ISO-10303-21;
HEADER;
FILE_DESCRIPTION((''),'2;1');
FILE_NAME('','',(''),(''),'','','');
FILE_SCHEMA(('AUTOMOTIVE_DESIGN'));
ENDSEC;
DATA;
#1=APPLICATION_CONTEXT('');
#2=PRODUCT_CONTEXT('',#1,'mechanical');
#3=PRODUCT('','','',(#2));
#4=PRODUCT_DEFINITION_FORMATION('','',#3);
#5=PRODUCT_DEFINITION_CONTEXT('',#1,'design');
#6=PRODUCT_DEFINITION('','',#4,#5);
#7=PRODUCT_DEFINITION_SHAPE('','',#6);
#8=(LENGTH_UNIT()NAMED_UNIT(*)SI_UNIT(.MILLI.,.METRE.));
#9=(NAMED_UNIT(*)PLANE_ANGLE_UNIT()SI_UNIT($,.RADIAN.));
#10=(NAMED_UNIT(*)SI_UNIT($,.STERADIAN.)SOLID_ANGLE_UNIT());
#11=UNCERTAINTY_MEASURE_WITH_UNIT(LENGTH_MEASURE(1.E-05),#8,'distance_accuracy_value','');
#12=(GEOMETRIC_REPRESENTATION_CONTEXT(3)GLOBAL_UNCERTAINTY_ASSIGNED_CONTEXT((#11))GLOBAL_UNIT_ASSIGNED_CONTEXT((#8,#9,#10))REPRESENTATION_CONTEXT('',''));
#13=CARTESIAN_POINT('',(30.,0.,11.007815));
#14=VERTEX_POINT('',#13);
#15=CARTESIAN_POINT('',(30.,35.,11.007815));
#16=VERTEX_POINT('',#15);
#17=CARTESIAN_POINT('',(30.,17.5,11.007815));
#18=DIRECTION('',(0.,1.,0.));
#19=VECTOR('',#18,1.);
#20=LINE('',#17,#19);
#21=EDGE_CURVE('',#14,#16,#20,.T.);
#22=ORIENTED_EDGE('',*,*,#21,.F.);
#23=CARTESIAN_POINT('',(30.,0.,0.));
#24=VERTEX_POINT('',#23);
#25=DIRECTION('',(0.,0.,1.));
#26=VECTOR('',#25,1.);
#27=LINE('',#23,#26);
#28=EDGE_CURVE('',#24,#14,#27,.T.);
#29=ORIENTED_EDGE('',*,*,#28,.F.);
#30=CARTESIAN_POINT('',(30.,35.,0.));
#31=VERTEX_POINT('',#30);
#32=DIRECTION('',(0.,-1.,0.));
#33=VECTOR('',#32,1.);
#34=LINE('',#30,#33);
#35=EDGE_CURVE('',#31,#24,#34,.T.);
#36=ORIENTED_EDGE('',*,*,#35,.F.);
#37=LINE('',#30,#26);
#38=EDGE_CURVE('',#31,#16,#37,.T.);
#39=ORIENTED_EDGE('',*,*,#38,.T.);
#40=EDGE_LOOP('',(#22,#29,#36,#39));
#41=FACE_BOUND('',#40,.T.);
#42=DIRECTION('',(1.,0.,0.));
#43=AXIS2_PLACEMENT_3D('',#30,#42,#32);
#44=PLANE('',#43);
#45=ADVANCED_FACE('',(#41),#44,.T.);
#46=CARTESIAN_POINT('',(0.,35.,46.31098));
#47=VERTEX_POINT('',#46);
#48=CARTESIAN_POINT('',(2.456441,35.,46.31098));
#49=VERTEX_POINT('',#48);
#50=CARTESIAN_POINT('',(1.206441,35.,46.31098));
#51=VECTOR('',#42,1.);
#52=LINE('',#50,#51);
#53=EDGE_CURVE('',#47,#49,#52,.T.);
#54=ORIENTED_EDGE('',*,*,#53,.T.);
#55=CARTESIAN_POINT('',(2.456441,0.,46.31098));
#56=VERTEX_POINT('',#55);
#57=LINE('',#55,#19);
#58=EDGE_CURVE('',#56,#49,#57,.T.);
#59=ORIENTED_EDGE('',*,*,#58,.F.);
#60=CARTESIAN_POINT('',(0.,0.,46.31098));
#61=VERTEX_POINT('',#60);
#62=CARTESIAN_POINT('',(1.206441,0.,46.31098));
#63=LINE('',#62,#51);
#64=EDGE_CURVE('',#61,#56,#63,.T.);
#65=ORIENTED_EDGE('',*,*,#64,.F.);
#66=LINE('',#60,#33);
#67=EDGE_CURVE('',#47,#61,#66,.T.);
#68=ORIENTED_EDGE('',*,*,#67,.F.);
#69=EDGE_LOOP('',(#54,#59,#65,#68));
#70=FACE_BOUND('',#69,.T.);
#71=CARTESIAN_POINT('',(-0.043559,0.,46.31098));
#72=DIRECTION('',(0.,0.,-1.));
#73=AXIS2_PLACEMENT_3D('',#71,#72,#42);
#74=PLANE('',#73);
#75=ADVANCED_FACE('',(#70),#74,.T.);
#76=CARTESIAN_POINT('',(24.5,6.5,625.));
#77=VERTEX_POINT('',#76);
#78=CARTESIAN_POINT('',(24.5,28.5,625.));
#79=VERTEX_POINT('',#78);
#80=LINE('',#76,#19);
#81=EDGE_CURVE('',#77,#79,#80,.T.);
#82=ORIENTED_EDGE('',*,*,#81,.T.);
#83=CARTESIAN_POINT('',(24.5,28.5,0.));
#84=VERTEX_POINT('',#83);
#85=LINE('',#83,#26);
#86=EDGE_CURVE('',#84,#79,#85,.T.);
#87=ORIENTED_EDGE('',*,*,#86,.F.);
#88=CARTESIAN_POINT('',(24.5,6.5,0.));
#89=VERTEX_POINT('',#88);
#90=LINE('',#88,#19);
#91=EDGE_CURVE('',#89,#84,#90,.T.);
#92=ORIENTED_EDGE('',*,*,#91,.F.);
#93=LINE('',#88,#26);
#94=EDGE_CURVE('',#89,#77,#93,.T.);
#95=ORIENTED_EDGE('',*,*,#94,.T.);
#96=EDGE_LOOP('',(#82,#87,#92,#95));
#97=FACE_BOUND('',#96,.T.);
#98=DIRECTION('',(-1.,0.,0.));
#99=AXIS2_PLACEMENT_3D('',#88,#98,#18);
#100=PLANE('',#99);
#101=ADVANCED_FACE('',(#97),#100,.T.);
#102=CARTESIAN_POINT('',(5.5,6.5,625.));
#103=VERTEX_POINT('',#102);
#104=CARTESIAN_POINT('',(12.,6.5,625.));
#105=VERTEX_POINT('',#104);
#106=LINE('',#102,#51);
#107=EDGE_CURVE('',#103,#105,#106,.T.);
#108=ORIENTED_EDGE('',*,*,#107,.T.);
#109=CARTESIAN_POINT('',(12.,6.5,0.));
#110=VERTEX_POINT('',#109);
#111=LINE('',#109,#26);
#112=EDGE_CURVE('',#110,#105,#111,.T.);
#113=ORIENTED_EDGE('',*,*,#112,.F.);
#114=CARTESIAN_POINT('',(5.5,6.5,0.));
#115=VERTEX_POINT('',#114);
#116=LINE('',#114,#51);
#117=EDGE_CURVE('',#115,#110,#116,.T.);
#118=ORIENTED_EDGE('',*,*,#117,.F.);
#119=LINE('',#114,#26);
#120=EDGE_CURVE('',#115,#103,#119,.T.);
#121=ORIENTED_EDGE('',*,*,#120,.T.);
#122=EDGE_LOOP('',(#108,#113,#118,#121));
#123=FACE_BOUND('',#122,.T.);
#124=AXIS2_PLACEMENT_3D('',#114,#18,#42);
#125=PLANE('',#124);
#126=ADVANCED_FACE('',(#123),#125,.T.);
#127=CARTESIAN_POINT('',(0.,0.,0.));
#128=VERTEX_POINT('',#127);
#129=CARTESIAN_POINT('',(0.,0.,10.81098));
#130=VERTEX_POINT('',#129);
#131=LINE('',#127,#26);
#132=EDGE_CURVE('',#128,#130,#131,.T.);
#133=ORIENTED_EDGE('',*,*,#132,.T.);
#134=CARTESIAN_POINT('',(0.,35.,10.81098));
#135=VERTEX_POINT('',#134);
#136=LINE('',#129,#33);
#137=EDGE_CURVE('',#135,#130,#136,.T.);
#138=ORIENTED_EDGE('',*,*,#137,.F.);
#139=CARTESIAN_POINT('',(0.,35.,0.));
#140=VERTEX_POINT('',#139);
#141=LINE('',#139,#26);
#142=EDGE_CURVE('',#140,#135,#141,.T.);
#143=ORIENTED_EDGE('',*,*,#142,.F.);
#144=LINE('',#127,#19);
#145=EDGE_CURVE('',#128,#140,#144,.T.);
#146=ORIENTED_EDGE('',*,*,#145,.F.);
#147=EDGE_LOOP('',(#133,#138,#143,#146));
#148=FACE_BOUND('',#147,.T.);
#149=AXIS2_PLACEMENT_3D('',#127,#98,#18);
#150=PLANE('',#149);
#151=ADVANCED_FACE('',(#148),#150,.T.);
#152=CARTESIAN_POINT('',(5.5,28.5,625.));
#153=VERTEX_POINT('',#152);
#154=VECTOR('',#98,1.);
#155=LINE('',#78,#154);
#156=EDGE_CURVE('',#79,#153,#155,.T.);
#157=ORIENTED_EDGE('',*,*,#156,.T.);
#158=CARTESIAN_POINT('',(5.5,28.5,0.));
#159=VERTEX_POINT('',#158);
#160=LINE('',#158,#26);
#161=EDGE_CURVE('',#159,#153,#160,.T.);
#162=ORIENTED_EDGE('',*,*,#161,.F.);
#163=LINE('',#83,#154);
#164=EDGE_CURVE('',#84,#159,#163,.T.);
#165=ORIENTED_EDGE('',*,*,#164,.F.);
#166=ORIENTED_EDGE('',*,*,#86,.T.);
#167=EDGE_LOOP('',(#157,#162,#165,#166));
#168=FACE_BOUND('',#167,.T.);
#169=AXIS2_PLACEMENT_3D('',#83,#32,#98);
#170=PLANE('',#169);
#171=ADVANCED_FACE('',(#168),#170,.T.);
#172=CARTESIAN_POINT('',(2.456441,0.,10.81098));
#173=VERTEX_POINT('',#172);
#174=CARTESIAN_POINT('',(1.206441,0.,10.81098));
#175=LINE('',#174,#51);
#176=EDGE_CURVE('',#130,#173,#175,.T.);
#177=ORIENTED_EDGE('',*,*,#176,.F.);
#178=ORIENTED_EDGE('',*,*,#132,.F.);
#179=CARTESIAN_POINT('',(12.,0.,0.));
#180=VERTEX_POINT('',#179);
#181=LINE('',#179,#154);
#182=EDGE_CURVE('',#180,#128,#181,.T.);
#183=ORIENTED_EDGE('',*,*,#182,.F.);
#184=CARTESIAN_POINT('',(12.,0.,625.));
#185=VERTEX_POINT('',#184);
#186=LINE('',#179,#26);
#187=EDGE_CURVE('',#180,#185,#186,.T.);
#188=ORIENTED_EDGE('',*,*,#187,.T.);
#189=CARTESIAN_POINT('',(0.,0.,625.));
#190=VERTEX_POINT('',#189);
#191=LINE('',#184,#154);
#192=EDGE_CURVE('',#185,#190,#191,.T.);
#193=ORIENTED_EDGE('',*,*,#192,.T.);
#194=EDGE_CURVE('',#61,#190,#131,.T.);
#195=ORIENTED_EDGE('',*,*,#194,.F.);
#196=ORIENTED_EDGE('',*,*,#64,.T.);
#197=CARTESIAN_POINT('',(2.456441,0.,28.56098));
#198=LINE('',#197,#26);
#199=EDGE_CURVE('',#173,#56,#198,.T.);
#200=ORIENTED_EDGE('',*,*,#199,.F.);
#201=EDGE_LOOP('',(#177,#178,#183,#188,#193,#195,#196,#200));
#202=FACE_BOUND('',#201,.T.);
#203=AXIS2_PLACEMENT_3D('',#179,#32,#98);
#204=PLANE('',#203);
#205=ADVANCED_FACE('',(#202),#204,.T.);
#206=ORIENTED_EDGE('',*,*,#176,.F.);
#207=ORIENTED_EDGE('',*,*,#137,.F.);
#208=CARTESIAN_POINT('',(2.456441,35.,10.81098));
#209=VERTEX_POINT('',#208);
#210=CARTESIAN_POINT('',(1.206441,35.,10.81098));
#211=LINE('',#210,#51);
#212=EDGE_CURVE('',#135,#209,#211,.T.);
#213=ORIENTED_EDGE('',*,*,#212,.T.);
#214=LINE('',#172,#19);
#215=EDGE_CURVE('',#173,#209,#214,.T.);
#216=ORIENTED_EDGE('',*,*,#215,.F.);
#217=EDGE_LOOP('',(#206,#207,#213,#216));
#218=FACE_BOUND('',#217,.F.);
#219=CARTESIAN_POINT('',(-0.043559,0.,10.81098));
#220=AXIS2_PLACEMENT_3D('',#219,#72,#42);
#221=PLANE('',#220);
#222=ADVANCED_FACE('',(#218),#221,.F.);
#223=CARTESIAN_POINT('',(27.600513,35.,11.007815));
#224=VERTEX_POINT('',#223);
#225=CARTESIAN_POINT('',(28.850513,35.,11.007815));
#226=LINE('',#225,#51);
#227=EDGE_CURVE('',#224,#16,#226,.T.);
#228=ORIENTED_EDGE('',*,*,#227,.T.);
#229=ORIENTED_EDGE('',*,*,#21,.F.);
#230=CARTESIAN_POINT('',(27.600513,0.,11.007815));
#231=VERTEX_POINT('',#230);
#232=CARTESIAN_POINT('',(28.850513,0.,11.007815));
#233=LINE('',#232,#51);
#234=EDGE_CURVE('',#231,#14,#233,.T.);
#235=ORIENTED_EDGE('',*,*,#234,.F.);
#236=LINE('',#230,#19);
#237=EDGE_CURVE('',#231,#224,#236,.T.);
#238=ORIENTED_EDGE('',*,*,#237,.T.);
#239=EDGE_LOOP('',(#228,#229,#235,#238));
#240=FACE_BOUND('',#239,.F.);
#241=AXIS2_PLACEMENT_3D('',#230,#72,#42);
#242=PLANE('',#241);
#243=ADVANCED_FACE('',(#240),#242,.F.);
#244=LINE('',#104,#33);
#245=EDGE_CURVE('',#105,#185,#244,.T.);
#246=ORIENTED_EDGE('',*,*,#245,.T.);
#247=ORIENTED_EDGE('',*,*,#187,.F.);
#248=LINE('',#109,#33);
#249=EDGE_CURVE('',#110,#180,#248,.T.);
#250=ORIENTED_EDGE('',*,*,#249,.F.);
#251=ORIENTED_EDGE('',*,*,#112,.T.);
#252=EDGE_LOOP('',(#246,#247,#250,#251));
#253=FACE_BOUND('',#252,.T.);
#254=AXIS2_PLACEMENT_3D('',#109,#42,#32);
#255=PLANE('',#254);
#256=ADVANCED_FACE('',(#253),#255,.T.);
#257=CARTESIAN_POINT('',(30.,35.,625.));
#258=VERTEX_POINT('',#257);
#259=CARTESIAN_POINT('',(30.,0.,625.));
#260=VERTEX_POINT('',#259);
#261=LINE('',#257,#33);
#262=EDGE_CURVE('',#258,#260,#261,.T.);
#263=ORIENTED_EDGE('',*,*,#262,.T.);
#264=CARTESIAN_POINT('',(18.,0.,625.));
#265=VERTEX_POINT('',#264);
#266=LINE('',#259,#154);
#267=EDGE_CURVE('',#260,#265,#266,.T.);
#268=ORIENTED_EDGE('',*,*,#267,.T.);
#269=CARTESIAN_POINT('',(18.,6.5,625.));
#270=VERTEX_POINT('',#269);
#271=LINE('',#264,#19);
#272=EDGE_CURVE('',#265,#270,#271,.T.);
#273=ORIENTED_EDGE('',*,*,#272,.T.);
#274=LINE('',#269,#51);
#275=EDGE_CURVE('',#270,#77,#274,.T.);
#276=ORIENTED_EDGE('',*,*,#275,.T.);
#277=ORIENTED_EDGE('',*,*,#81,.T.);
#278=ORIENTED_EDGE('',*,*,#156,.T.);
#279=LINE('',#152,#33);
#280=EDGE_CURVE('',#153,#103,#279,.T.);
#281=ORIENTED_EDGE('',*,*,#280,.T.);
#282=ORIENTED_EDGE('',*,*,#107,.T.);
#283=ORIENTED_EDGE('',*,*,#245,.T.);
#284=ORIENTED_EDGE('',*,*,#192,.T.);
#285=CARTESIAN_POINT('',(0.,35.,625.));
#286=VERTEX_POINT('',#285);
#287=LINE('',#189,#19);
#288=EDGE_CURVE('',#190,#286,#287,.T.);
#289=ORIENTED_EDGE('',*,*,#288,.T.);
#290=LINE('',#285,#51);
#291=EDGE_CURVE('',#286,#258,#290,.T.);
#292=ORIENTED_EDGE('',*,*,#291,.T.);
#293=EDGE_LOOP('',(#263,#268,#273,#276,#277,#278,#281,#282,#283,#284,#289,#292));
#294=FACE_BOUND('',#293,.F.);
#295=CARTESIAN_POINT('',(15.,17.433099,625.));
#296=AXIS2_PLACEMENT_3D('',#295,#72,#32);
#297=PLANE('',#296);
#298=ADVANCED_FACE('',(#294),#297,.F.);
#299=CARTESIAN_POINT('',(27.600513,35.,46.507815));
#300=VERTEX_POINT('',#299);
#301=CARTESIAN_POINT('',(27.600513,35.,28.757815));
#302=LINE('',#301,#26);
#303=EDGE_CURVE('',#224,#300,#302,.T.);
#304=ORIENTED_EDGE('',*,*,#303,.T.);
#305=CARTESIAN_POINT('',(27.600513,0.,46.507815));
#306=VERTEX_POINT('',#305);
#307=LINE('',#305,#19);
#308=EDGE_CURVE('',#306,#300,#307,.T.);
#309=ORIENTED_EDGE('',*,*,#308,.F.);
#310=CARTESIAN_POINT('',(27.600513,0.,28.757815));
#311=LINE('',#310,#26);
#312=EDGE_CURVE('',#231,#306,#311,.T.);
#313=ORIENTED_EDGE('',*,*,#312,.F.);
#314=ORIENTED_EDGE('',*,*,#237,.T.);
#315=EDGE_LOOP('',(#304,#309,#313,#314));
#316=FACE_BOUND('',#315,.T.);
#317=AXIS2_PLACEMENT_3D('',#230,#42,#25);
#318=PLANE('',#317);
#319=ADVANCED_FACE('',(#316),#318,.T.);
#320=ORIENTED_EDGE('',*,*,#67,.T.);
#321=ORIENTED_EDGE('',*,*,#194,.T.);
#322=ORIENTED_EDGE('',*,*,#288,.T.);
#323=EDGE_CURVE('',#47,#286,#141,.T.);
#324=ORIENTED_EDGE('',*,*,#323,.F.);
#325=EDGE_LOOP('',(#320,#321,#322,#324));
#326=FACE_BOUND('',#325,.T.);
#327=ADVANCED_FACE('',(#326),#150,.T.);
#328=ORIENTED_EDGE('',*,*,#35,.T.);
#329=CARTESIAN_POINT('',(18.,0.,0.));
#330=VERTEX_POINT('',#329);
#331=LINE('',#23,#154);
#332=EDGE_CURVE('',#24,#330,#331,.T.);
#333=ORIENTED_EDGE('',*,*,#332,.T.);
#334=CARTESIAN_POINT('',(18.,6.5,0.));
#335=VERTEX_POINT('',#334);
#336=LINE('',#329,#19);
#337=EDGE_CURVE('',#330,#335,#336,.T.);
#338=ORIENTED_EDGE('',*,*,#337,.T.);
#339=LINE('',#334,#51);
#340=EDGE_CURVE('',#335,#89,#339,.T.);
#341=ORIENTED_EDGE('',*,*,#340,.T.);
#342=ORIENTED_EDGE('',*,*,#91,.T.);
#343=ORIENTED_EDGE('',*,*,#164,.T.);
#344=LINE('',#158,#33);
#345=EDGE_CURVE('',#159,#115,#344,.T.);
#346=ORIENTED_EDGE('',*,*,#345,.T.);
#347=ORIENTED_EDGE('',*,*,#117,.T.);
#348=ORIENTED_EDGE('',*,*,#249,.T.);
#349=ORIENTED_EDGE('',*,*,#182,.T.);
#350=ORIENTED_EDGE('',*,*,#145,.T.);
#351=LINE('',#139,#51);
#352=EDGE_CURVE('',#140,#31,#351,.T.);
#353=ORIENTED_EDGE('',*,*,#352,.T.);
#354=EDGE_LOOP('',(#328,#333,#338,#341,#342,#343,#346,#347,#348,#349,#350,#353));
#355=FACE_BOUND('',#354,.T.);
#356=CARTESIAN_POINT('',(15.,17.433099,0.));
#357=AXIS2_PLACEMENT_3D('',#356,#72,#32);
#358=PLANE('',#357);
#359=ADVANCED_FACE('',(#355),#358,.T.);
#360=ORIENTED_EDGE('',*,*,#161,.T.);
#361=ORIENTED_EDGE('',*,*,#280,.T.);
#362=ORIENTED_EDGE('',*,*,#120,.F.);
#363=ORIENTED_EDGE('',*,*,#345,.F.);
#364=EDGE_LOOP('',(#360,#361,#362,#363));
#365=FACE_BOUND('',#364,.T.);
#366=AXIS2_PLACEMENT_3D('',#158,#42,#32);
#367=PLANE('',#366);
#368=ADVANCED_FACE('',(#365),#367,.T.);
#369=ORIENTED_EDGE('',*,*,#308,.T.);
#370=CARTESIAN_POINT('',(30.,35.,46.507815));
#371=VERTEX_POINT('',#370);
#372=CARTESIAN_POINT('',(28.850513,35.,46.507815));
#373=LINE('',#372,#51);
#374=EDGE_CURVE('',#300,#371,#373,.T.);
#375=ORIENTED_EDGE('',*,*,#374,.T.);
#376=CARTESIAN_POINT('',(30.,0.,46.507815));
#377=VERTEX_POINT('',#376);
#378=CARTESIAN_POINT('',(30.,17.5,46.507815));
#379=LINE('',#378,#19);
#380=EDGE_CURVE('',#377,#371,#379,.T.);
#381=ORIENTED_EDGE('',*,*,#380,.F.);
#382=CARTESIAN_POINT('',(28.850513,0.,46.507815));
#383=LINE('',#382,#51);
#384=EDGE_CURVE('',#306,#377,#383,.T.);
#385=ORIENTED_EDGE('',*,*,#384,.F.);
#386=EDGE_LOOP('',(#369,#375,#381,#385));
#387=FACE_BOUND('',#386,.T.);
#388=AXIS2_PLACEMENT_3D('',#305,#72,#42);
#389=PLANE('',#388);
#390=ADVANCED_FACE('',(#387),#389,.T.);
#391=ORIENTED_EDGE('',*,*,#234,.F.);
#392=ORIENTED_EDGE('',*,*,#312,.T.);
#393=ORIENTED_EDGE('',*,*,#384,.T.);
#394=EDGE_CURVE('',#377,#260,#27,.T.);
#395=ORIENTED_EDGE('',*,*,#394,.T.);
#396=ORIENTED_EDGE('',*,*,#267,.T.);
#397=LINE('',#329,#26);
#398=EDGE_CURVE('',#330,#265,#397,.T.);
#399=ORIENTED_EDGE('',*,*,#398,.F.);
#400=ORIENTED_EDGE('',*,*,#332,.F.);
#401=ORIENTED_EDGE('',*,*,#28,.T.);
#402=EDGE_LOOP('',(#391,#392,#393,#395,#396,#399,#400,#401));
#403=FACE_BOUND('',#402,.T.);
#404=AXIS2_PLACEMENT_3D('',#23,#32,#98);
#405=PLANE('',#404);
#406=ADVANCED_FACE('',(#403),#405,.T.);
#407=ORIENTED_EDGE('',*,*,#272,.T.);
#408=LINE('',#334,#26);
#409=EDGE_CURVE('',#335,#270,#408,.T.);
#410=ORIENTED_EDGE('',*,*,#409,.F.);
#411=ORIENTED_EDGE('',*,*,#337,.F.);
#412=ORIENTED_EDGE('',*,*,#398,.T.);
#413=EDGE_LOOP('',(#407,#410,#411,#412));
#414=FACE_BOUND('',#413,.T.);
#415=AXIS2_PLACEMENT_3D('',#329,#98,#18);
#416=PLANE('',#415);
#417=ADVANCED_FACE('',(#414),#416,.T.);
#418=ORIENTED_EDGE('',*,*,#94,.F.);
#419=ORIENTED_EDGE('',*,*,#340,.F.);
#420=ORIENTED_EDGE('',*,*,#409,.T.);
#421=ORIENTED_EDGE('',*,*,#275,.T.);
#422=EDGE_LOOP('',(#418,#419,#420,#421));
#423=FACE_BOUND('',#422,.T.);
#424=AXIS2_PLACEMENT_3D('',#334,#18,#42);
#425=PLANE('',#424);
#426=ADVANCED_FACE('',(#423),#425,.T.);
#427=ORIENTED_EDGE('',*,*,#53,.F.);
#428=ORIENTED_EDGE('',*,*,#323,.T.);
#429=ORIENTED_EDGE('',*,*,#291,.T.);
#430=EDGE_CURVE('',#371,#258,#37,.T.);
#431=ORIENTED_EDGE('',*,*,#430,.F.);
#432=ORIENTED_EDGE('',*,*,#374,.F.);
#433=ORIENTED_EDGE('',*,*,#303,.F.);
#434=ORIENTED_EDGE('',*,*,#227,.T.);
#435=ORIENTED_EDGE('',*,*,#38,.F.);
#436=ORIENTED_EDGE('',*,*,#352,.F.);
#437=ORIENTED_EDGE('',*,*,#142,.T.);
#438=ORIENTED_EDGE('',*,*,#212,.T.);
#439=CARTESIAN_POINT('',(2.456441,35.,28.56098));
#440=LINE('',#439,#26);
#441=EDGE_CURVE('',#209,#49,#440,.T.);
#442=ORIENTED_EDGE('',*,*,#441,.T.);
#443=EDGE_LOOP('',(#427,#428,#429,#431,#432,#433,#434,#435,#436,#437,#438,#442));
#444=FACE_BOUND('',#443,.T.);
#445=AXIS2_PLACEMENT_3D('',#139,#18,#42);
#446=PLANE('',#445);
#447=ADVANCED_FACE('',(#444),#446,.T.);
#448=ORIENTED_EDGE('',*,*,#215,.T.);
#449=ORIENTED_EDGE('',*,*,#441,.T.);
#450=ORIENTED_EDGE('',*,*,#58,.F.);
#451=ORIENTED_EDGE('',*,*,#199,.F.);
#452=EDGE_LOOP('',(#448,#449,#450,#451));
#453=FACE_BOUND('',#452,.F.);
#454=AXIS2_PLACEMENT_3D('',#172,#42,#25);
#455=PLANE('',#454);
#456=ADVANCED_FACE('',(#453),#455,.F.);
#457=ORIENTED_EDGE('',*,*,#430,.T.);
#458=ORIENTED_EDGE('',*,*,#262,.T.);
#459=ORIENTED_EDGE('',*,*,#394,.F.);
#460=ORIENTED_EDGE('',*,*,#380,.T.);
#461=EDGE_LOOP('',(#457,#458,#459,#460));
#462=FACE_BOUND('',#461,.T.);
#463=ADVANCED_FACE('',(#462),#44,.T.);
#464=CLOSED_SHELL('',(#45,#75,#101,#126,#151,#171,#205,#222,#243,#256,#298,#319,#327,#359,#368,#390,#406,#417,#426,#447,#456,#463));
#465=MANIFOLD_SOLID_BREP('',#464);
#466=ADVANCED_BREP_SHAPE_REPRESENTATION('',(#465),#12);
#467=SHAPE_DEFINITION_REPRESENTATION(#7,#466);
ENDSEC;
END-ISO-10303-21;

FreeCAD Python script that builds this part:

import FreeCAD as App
import Part
import Sketcher

V = App.Vector
Q = App.Units.Quantity


def add_polygon(sketch, points):
    """Adds a closed chain of lines whose ends are joined by coincident constraints."""
    first, n = sketch.GeometryCount, len(points)
    for a, b in zip(points, points[1:] + points[:1]):
        sketch.addGeometry(Part.LineSegment(App.Vector(*a, 0), App.Vector(*b, 0)), False)
    for i in range(n):
        sketch.addConstraint(Sketcher.Constraint("Coincident", first + i, 2, first + (i + 1) % n, 1))

doc = App.newDocument("Part")
body = doc.addObject("PartDesign::Body", "Body")

sketch1 = body.newObject("Sketcher::SketchObject", "Sketch")
sketch1.AttachmentSupport = (doc.getObject("XY_Plane"), [""])
sketch1.MapMode = "FlatFace"
add_polygon(sketch1, [(35, 0), (0, 0), (0, -12), (6, -12), (6, -6), (28, -6), (28, -24), (6, -24), (6, -18), (0, -18), (0, -30), (35, -30)])
sketch1.addConstraint([
    Sketcher.Constraint("Horizontal", 0),
    Sketcher.Constraint("Vertical", 1),
    Sketcher.Constraint("Horizontal", 2),
    Sketcher.Constraint("Vertical", 3),
    Sketcher.Constraint("Horizontal", 4),
    Sketcher.Constraint("Vertical", 5),
    Sketcher.Constraint("Horizontal", 6),
    Sketcher.Constraint("Vertical", 7),
    Sketcher.Constraint("Horizontal", 8),
    Sketcher.Constraint("Vertical", 9),
    Sketcher.Constraint("Horizontal", 10),
    Sketcher.Constraint("Vertical", 11),
    Sketcher.Constraint("Coincident", 0, 2, -1, 1),
    Sketcher.Constraint("PointOnObject", 8, 2, -2),
    Sketcher.Constraint("Vertical", 3, 2, 6, 2),
    Sketcher.Constraint("Equal", 8, 3),
    Sketcher.Constraint("Equal", 3, 7),
    Sketcher.Constraint("Equal", 1, 9),
    Sketcher.Constraint("DistanceX", 0, 2, 0, 1, Q("35 mm")),
    Sketcher.Constraint("DistanceX", 4, 1, 4, 2, Q("22 mm")),
    Sketcher.Constraint("DistanceY", 1, 2, 1, 1, Q("12 mm")),
    Sketcher.Constraint("DistanceY", 5, 2, 5, 1, Q("19 mm")),
    Sketcher.Constraint("DistanceY", 11, 1, 11, 2, Q("30 mm")),
])
pad1 = body.newObject("PartDesign::Pad", "Pad")
pad1.Profile = sketch1
pad1.Length = 625

sketch2 = body.newObject("Sketcher::SketchObject", "Sketch001")
sketch2.AttachmentSupport = (doc.getObject("YZ_Plane"), [""])
sketch2.MapMode = "FlatFace"
add_polygon(sketch2, [(-27.6, 46.5), (-27.6, 11), (-30.1, 11), (-30.1, 46.5)])
add_polygon(sketch2, [(0, 46.3), (0, 10.8), (-2.5, 10.8), (-2.5, 46.3)])
sketch2.addConstraint([
    Sketcher.Constraint("Vertical", 0),
    Sketcher.Constraint("Horizontal", 1),
    Sketcher.Constraint("Vertical", 2),
    Sketcher.Constraint("Horizontal", 3),
    Sketcher.Constraint("Vertical", 4),
    Sketcher.Constraint("Horizontal", 5),
    Sketcher.Constraint("Vertical", 6),
    Sketcher.Constraint("Horizontal", 7),
    Sketcher.Constraint("Equal", 3, 5),
    Sketcher.Constraint("Equal", 2, 4),
    Sketcher.Constraint("DistanceX", 1, 2, 1, 1, Q("2.5 mm")),
    Sketcher.Constraint("DistanceY", 0, 2, 0, 1, Q("35.5 mm")),
    Sketcher.Constraint("DistanceX", -1, 1, 4, 2, Q("0.043559 mm")),
    Sketcher.Constraint("DistanceY", -1, 1, 4, 2, Q("10.81098 mm")),
    Sketcher.Constraint("DistanceX", 0, 2, 4, 2, Q("27.644072 mm")),
    Sketcher.Constraint("DistanceY", -1, 1, 0, 2, Q("11.007815 mm")),
])
pocket1 = body.newObject("PartDesign::Pocket", "Pocket")
pocket1.Profile = sketch2
pocket1.Length = 35
pocket1.Reversed = True
body2 = doc.addObject("PartDesign::Body", "Body001")
doc.recompute()

body.Placement = App.Placement(V(0, 0, 0), App.Rotation(V(0, 0, 1), 90))
boolean = body2.newObject("PartDesign::Boolean", "Boolean")
boolean.Type = "Fuse"
boolean.addObjects([body])

doc.recompute()
